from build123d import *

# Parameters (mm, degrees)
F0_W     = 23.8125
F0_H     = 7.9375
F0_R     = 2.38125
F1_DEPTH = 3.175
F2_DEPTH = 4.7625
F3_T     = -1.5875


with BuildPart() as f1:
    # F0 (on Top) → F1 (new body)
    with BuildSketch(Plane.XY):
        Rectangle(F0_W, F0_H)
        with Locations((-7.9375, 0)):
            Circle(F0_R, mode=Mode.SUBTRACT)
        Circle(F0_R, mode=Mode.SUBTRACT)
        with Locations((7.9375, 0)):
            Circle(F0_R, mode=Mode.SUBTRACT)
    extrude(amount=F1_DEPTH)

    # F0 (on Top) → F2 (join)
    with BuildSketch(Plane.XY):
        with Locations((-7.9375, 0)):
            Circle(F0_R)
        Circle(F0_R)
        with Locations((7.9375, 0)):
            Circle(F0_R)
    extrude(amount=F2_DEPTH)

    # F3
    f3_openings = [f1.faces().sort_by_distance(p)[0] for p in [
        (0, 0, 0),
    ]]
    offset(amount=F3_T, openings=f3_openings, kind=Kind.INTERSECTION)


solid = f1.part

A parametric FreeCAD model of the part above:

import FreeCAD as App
import Part
import Sketcher
from FreeCAD import Vector
Q = App.Units.Quantity


def faces_at(feature, points):
    """Names of the faces that lie closest to the given points."""
    faces = feature.Shape.Faces
    near = lambda p: min(range(len(faces)), key=lambda i: faces[i].distToShape(Part.Vertex(*p))[0])
    return sorted({f"Face{near(p) + 1}" for p in points})

doc = App.newDocument("Part")
body = doc.addObject("PartDesign::Body", "Body")

# Sketch on XY plane
sketch1 = doc.addObject("Sketcher::SketchObject", "Sketch")
body.addObject(sketch1)
sketch1.AttachmentSupport = (doc.XY_Plane, [""])
sketch1.MapMode = "FlatFace"
sketch1.addGeometry([
    Part.LineSegment(Vector(-11.9, 4, 0), Vector(-11.9, -4, 0)),  # 0
    Part.LineSegment(Vector(-11.9, -4, 0), Vector(11.9, -4, 0)),  # 1
    Part.LineSegment(Vector(11.9, -4, 0), Vector(11.9, 4, 0)),  # 2
    Part.LineSegment(Vector(11.9, 4, 0), Vector(-11.9, 4, 0)),  # 3
    Part.Circle(Vector(-7.9, 0, 0), Vector(0, 0, 1), 2.4),  # 4
    Part.Circle(Vector(0, 0, 0), Vector(0, 0, 1), 2.4),  # 5
    Part.Circle(Vector(7.9, 0, 0), Vector(0, 0, 1), 2.4),  # 6
], False)
sketch1.addConstraint([
    Sketcher.Constraint("Coincident", 0, 2, 1, 1),
    Sketcher.Constraint("Coincident", 1, 2, 2, 1),
    Sketcher.Constraint("Coincident", 2, 2, 3, 1),
    Sketcher.Constraint("Coincident", 3, 2, 0, 1),
    Sketcher.Constraint("Vertical", 0),
    Sketcher.Constraint("Horizontal", 1),
    Sketcher.Constraint("Vertical", 2),
    Sketcher.Constraint("Horizontal", 3),
    Sketcher.Constraint("Coincident", 5, 3, -1, 1),
    Sketcher.Constraint("Equal", 4, 5),
    Sketcher.Constraint("Equal", 5, 6),
    Sketcher.Constraint("Symmetric", 4, 3, 6, 3, -1, 1),
    Sketcher.Constraint("Symmetric", 0, 2, 2, 2, -1, 1),
    Sketcher.Constraint("PointOnObject", 4, 3, -1),
    Sketcher.Constraint("Diameter", 4, Q("0.1875 in")),
    Sketcher.Constraint("DistanceX", 1, 1, 1, 2, Q("0.9375 in")),
    Sketcher.Constraint("DistanceY", 0, 2, 0, 1, Q("0.3125 in")),
    Sketcher.Constraint("DistanceX", 4, 3, -1, 1, Q("0.3125 in")),
])
pad1 = doc.addObject("PartDesign::Pad", "Pad")
body.addObject(pad1)
pad1.Profile = sketch1
pad1.Length = Q("0.125 in")

# Sketch on XY plane
sketch2 = doc.addObject("Sketcher::SketchObject", "Sketch001")
body.addObject(sketch2)
sketch2.AttachmentSupport = (doc.XY_Plane, [""])
sketch2.MapMode = "FlatFace"
sketch2.addGeometry([
    Part.Circle(Vector(-7.9, 0, 0), Vector(0, 0, 1), 2.4),
    Part.Circle(Vector(0, 0, 0), Vector(0, 0, 1), 2.4),
    Part.Circle(Vector(7.9, 0, 0), Vector(0, 0, 1), 2.4),
], False)
sketch2.addConstraint([
    Sketcher.Constraint("Coincident", 1, 3, -1, 1),
    Sketcher.Constraint("Equal", 0, 1),
    Sketcher.Constraint("Equal", 1, 2),
    Sketcher.Constraint("Symmetric", 0, 3, 2, 3, -1, 1),
    Sketcher.Constraint("PointOnObject", 0, 3, -1),
    Sketcher.Constraint("Diameter", 0, Q("0.1875 in")),
    Sketcher.Constraint("DistanceX", 0, 3, -1, 1, Q("0.3125 in")),
])
pad2 = doc.addObject("PartDesign::Pad", "Pad001")
body.addObject(pad2)
pad2.Profile = sketch2
pad2.Length = Q("0.1875 in")
doc.recompute()

thickness = doc.addObject("PartDesign::Thickness", "Thickness")
body.addObject(thickness)
thickness.Base = (pad2, faces_at(pad2, [(0, 0, 0)]))
thickness.Value = Q("0.0625 in")
thickness.Reversed = True
thickness.Join = "Intersection"

doc.recompute()
